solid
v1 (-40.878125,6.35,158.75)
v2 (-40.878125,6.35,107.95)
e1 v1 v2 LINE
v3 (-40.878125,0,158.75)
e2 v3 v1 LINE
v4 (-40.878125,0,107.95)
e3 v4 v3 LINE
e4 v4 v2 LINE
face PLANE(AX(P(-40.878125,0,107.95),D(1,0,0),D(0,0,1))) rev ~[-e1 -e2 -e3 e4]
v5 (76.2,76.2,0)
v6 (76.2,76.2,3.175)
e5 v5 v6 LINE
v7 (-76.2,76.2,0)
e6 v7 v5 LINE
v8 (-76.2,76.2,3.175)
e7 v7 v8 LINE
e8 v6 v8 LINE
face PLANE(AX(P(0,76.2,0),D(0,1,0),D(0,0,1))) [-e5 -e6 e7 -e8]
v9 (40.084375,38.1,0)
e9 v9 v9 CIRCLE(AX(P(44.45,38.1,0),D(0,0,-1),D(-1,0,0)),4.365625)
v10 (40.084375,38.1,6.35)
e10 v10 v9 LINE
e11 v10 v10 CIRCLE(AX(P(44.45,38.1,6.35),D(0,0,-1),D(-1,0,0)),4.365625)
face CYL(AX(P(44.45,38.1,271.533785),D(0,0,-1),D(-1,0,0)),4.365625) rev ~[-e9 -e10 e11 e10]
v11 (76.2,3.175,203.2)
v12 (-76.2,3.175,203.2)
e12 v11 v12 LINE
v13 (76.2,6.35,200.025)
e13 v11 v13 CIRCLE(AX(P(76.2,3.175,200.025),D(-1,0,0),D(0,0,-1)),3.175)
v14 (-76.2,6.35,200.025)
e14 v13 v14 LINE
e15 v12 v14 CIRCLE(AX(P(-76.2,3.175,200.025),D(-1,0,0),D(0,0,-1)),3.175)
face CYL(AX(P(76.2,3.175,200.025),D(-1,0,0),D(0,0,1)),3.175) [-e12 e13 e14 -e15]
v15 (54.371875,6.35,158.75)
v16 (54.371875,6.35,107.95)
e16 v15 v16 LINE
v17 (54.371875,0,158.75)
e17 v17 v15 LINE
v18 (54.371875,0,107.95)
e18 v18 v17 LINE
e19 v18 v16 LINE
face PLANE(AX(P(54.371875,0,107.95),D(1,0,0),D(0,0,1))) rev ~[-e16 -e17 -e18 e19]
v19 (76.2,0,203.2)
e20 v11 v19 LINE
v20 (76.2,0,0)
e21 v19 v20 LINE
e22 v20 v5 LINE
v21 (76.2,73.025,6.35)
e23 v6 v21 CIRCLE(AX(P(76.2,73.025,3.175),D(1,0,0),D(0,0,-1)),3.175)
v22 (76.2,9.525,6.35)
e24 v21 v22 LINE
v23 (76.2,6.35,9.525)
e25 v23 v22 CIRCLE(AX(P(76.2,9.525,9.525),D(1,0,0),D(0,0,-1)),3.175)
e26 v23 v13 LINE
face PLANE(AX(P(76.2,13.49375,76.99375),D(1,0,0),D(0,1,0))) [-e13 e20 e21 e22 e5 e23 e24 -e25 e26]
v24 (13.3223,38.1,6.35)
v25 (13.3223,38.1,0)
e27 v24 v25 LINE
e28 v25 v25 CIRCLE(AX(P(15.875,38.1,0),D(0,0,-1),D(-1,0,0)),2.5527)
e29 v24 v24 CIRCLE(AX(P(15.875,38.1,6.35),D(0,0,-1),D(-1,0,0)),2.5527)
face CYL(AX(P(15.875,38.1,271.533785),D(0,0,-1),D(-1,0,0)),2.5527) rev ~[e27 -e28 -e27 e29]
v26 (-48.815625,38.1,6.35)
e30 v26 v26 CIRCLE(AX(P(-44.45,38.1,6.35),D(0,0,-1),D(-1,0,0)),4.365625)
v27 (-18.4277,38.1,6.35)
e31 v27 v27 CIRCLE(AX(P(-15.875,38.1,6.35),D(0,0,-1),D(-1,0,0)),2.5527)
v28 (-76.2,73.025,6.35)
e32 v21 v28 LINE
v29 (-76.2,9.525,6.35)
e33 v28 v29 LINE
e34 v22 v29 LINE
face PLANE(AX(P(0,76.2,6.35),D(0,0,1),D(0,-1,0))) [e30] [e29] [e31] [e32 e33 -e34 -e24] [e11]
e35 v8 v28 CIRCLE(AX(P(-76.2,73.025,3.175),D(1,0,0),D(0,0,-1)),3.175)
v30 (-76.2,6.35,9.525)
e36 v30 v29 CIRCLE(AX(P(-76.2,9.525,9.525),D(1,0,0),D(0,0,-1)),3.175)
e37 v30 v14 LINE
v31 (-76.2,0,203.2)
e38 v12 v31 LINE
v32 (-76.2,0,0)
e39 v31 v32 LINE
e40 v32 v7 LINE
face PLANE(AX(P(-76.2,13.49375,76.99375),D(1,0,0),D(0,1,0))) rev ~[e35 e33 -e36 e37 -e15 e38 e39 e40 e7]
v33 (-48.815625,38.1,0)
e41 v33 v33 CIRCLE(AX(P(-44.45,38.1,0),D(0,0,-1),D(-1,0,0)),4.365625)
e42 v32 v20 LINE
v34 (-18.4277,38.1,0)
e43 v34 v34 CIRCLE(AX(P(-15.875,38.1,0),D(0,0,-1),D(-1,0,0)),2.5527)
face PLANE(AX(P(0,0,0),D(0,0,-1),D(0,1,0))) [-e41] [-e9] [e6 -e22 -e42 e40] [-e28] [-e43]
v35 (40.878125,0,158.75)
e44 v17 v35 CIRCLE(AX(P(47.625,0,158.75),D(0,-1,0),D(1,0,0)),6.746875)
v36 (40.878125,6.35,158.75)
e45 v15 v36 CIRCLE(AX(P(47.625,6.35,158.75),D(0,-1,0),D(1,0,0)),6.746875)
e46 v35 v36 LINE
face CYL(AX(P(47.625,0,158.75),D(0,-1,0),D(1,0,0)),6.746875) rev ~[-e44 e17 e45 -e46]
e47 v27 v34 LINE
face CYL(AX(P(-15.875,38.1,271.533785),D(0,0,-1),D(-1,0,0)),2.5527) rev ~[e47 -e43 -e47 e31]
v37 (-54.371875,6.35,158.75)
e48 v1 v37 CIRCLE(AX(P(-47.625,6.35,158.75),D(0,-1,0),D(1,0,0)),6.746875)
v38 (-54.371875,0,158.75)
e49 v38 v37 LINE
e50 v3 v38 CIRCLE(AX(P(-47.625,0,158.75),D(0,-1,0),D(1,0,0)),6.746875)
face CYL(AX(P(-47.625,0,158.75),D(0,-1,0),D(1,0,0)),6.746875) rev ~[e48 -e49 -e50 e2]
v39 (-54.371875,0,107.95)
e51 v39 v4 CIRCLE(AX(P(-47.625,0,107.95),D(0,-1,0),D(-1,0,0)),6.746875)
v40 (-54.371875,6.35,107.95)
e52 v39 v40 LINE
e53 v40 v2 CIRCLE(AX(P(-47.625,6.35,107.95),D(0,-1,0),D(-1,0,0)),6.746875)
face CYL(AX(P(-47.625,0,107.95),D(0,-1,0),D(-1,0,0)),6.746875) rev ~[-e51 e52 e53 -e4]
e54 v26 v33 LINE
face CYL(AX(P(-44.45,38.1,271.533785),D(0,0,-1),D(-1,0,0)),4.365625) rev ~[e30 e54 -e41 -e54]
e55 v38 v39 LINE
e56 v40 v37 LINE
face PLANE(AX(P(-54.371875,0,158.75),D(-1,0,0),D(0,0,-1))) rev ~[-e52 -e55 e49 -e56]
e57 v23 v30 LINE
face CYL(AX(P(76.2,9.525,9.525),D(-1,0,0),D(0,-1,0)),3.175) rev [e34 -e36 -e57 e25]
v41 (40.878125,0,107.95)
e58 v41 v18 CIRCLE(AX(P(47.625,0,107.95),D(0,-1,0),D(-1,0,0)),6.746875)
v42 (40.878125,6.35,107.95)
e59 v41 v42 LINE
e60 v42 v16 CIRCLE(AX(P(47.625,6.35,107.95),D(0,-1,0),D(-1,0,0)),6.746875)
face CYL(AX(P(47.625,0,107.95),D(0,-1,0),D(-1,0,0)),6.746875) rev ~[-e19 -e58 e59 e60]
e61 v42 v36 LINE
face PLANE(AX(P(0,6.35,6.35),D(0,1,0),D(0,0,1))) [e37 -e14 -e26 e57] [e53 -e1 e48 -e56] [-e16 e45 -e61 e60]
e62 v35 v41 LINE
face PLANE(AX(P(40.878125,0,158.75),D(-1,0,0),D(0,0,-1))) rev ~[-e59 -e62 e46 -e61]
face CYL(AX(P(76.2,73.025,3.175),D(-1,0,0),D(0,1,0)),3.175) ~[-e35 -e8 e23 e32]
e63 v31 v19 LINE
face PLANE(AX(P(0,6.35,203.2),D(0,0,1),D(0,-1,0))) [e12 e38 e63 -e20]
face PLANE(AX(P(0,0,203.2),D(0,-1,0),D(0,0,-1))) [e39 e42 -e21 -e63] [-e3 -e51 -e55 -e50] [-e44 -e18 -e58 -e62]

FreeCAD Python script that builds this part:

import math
import FreeCAD as App
import Part
import Sketcher
from FreeCAD import Vector
Q = App.Units.Quantity


def edges_at(feature, points):
    """Names of the edges that pass closest to the given points."""
    edges = feature.Shape.Edges
    near = lambda p: min(range(len(edges)), key=lambda i: edges[i].distToShape(Part.Vertex(*p))[0])
    return sorted({f"Edge{near(p) + 1}" for p in points})

doc = App.newDocument("Part")
params = doc.addObject("Spreadsheet::Sheet", "Params")
for row, (alias, value) in enumerate([
    ("sketch1_width", "3 in"),
    ("sketch1_height", "8 in"),
    ("sketch1_width2", "0.25 in"),
    ("pad1_length", "6 in"),
    ("sketch2_height", "2 in"),
    ("sketch2_radius", "0.265625 in"),
    ("pocket1_length", "1 in"),
    ("sketch3_diameter", "0.34375 in"),
    ("hole_diameter", "0.34375 in"),
    ("sketch4_diameter", "0.201 in"),
    ("hole2_diameter", "0.201 in"),
    ("fillet_radius", "0.125 in"),
], start=1):
    params.set(f"A{row}", alias)
    params.set(f"B{row}", "=" + value)
    params.setAlias(f"B{row}", alias)

body = doc.addObject("PartDesign::Body", "Body")

# Sketch on YZ plane
sketch1 = doc.addObject("Sketcher::SketchObject", "Sketch")
body.addObject(sketch1)
sketch1.AttachmentSupport = (doc.YZ_Plane, [""])
sketch1.MapMode = "FlatFace"
sketch1.addGeometry(Part.LineSegment(Vector(6.35, 203.2, 0), Vector(0, 203.2, 0)), False)
sketch1.addGeometry(Part.LineSegment(Vector(0, 203.2, 0), Vector(0, 0, 0)), False)
sketch1.addGeometry(Part.LineSegment(Vector(0, 0, 0), Vector(76.2, 0, 0)), False)
sketch1.addGeometry(Part.LineSegment(Vector(76.2, 0, 0), Vector(76.2, 6.35, 0)), False)
sketch1.addGeometry(Part.LineSegment(Vector(76.2, 6.35, 0), Vector(6.35, 6.35, 0)), False)
sketch1.addGeometry(Part.LineSegment(Vector(6.35, 6.35, 0), Vector(6.35, 203.2, 0)), False)
sketch1.addConstraint(Sketcher.Constraint("Coincident", 0, 2, 1, 1))
sketch1.addConstraint(Sketcher.Constraint("Coincident", 1, 2, 2, 1))
sketch1.addConstraint(Sketcher.Constraint("Coincident", 2, 2, 3, 1))
sketch1.addConstraint(Sketcher.Constraint("Coincident", 3, 2, 4, 1))
sketch1.addConstraint(Sketcher.Constraint("Coincident", 4, 2, 5, 1))
sketch1.addConstraint(Sketcher.Constraint("Coincident", 5, 2, 0, 1))
sketch1.addConstraint(Sketcher.Constraint("Horizontal", 0))
sketch1.addConstraint(Sketcher.Constraint("Vertical", 1))
sketch1.addConstraint(Sketcher.Constraint("Horizontal", 2))
sketch1.addConstraint(Sketcher.Constraint("Vertical", 3))
sketch1.addConstraint(Sketcher.Constraint("Horizontal", 4))
sketch1.addConstraint(Sketcher.Constraint("Vertical", 5))
sketch1.addConstraint(Sketcher.Constraint("Coincident", 1, 2, -1, 1))
sketch1.addConstraint(Sketcher.Constraint("Equal", 0, 3))
sketch1.addConstraint(Sketcher.Constraint("DistanceX", 2, 1, 2, 2, Q("3 in")))
sketch1.addConstraint(Sketcher.Constraint("DistanceY", 1, 2, 1, 1, Q("8 in")))
sketch1.addConstraint(Sketcher.Constraint("DistanceX", 0, 2, 0, 1, Q("0.25 in")))
sketch1.setExpression("Constraints[14]", "Params.sketch1_width")
sketch1.setExpression("Constraints[15]", "Params.sketch1_height")
sketch1.setExpression("Constraints[16]", "Params.sketch1_width2")
pad1 = doc.addObject("PartDesign::Pad", "Pad")
body.addObject(pad1)
pad1.Profile = sketch1
pad1.setExpression("Length", "Params.pad1_length")
pad1.Midplane = True

# Sketch on XZ plane
sketch2 = doc.addObject("Sketcher::SketchObject", "Sketch001")
body.addObject(sketch2)
sketch2.AttachmentSupport = (doc.XZ_Plane, [""])
sketch2.MapMode = "FlatFace"
sketch2.addGeometry(Part.ArcOfCircle(Part.Circle(Vector(-47.625, 158.75, 0), Vector(0, 0, 1), 6.746875), math.radians(0), math.radians(180)), False)
sketch2.addGeometry(Part.LineSegment(Vector(-54.371875, 158.75, 0), Vector(-54.371875, 107.95, 0)), False)
sketch2.addGeometry(Part.ArcOfCircle(Part.Circle(Vector(-47.625, 107.95, 0), Vector(0, 0, 1), 6.746875), math.radians(180), math.radians(360)), False)
sketch2.addGeometry(Part.LineSegment(Vector(-40.878125, 107.95, 0), Vector(-40.878125, 158.75, 0)), False)
sketch2.addGeometry(Part.LineSegment(Vector(54.371875, 107.95, 0), Vector(54.371875, 158.75, 0)), False)
sketch2.addGeometry(Part.ArcOfCircle(Part.Circle(Vector(47.625, 158.75, 0), Vector(0, 0, 1), 6.746875), math.radians(0), math.radians(180)), False)
sketch2.addGeometry(Part.LineSegment(Vector(40.878125, 158.75, 0), Vector(40.878125, 107.95, 0)), False)
sketch2.addGeometry(Part.ArcOfCircle(Part.Circle(Vector(47.625, 107.95, 0), Vector(0, 0, 1), 6.746875), math.radians(180), math.radians(360)), False)
sketch2.addConstraint(Sketcher.Constraint("Tangent", 0, 2, 1, 1))
sketch2.addConstraint(Sketcher.Constraint("Tangent", 1, 2, 2, 1))
sketch2.addConstraint(Sketcher.Constraint("Tangent", 2, 2, 3, 1))
sketch2.addConstraint(Sketcher.Constraint("Tangent", 3, 2, 0, 1))
sketch2.addConstraint(Sketcher.Constraint("Tangent", 4, 2, 5, 1))
sketch2.addConstraint(Sketcher.Constraint("Tangent", 5, 2, 6, 1))
sketch2.addConstraint(Sketcher.Constraint("Tangent", 6, 2, 7, 1))
sketch2.addConstraint(Sketcher.Constraint("Tangent", 7, 2, 4, 1))
sketch2.addConstraint(Sketcher.Constraint("Vertical", 1))
sketch2.addConstraint(Sketcher.Constraint("Vertical", 3))
sketch2.addConstraint(Sketcher.Constraint("Vertical", 4))
sketch2.addConstraint(Sketcher.Constraint("Vertical", 6))
sketch2.addConstraint(Sketcher.Constraint("Equal", 2, 5))
sketch2.addConstraint(Sketcher.Constraint("Symmetric", 0, 3, 5, 3, -2))
sketch2.addConstraint(Sketcher.Constraint("Horizontal", 2, 3, 7, 3))
sketch2.addConstraint(Sketcher.Constraint("DistanceY", 1, 2, 1, 1, Q("2 in")))
sketch2.addConstraint(Sketcher.Constraint("Radius", 0, Q("0.265625 in")))
sketch2.addConstraint(Sketcher.Constraint("DistanceY", -1, 1, 0, 3, Q("6.25 in")))
sketch2.addConstraint(Sketcher.Constraint("DistanceX", 0, 3, 5, 3, Q("3.75 in")))
sketch2.setExpression("Constraints[15]", "Params.sketch2_height")
sketch2.setExpression("Constraints[16]", "Params.sketch2_radius")
pocket1 = doc.addObject("PartDesign::Pocket", "Pocket")
body.addObject(pocket1)
pocket1.Profile = sketch2
pocket1.setExpression("Length", "Params.pocket1_length")

# Sketch on XY plane
sketch3 = doc.addObject("Sketcher::SketchObject", "Sketch002")
body.addObject(sketch3)
sketch3.AttachmentSupport = (doc.XY_Plane, [""])
sketch3.MapMode = "FlatFace"
sketch3.AttachmentOffset = App.Placement(Vector(0, 0, 0.25 * 25.4), App.Rotation())
sketch3.addGeometry(Part.Circle(Vector(-44.45, 38.1, 0), Vector(0, 0, 1), 4.365625), False)
sketch3.addGeometry(Part.Circle(Vector(44.45, 38.1, 0), Vector(0, 0, 1), 4.365625), False)
sketch3.addConstraint(Sketcher.Constraint("Equal", 0, 1))
sketch3.addConstraint(Sketcher.Constraint("Symmetric", 0, 3, 1, 3, -2))
sketch3.addConstraint(Sketcher.Constraint("Diameter", 0, Q("0.34375 in")))
sketch3.addConstraint(Sketcher.Constraint("DistanceY", -1, 1, 0, 3, Q("1.5 in")))
sketch3.addConstraint(Sketcher.Constraint("DistanceX", 0, 3, 1, 3, Q("3.5 in")))
sketch3.setExpression("Constraints[2]", "Params.sketch3_diameter")
doc.recompute()
hole = doc.addObject("PartDesign::Hole", "Hole")
body.addObject(hole)
hole.Profile = sketch3
hole.ThreadType = "None"
hole.setExpression("Diameter", "Params.hole_diameter")
hole.DepthType = "ThroughAll"

# Sketch on XY plane
sketch4 = doc.addObject("Sketcher::SketchObject", "Sketch003")
body.addObject(sketch4)
sketch4.AttachmentSupport = (doc.XY_Plane, [""])
sketch4.MapMode = "FlatFace"
sketch4.AttachmentOffset = App.Placement(Vector(0, 0, 0.25 * 25.4), App.Rotation())
sketch4.addGeometry(Part.Circle(Vector(15.875, 38.1, 0), Vector(0, 0, 1), 2.5527), False)
sketch4.addGeometry(Part.Circle(Vector(-15.875, 38.1, 0), Vector(0, 0, 1), 2.5527), False)
sketch4.addConstraint(Sketcher.Constraint("Equal", 0, 1))
sketch4.addConstraint(Sketcher.Constraint("Symmetric", 0, 3, 1, 3, -2))
sketch4.addConstraint(Sketcher.Constraint("Diameter", 0, Q("0.201 in")))
sketch4.addConstraint(Sketcher.Constraint("DistanceY", -1, 1, 0, 3, Q("1.5 in")))
sketch4.addConstraint(Sketcher.Constraint("DistanceX", 1, 3, 0, 3, Q("1.25 in")))
sketch4.setExpression("Constraints[2]", "Params.sketch4_diameter")
doc.recompute()
hole2 = doc.addObject("PartDesign::Hole", "Hole001")
body.addObject(hole2)
hole2.Profile = sketch4
hole2.ThreadType = "None"
hole2.setExpression("Diameter", "Params.hole2_diameter")
hole2.DepthType = "ThroughAll"
doc.recompute()

fillet = doc.addObject("PartDesign::Fillet", "Fillet")
body.addObject(fillet)
fillet.Base = (hole2, edges_at(hole2, [(0, 6.35, 6.35), (0, 6.35, 203.2), (0, 76.2, 6.35)]))
fillet.setExpression("Radius", "Params.fillet_radius")

doc.recompute()
